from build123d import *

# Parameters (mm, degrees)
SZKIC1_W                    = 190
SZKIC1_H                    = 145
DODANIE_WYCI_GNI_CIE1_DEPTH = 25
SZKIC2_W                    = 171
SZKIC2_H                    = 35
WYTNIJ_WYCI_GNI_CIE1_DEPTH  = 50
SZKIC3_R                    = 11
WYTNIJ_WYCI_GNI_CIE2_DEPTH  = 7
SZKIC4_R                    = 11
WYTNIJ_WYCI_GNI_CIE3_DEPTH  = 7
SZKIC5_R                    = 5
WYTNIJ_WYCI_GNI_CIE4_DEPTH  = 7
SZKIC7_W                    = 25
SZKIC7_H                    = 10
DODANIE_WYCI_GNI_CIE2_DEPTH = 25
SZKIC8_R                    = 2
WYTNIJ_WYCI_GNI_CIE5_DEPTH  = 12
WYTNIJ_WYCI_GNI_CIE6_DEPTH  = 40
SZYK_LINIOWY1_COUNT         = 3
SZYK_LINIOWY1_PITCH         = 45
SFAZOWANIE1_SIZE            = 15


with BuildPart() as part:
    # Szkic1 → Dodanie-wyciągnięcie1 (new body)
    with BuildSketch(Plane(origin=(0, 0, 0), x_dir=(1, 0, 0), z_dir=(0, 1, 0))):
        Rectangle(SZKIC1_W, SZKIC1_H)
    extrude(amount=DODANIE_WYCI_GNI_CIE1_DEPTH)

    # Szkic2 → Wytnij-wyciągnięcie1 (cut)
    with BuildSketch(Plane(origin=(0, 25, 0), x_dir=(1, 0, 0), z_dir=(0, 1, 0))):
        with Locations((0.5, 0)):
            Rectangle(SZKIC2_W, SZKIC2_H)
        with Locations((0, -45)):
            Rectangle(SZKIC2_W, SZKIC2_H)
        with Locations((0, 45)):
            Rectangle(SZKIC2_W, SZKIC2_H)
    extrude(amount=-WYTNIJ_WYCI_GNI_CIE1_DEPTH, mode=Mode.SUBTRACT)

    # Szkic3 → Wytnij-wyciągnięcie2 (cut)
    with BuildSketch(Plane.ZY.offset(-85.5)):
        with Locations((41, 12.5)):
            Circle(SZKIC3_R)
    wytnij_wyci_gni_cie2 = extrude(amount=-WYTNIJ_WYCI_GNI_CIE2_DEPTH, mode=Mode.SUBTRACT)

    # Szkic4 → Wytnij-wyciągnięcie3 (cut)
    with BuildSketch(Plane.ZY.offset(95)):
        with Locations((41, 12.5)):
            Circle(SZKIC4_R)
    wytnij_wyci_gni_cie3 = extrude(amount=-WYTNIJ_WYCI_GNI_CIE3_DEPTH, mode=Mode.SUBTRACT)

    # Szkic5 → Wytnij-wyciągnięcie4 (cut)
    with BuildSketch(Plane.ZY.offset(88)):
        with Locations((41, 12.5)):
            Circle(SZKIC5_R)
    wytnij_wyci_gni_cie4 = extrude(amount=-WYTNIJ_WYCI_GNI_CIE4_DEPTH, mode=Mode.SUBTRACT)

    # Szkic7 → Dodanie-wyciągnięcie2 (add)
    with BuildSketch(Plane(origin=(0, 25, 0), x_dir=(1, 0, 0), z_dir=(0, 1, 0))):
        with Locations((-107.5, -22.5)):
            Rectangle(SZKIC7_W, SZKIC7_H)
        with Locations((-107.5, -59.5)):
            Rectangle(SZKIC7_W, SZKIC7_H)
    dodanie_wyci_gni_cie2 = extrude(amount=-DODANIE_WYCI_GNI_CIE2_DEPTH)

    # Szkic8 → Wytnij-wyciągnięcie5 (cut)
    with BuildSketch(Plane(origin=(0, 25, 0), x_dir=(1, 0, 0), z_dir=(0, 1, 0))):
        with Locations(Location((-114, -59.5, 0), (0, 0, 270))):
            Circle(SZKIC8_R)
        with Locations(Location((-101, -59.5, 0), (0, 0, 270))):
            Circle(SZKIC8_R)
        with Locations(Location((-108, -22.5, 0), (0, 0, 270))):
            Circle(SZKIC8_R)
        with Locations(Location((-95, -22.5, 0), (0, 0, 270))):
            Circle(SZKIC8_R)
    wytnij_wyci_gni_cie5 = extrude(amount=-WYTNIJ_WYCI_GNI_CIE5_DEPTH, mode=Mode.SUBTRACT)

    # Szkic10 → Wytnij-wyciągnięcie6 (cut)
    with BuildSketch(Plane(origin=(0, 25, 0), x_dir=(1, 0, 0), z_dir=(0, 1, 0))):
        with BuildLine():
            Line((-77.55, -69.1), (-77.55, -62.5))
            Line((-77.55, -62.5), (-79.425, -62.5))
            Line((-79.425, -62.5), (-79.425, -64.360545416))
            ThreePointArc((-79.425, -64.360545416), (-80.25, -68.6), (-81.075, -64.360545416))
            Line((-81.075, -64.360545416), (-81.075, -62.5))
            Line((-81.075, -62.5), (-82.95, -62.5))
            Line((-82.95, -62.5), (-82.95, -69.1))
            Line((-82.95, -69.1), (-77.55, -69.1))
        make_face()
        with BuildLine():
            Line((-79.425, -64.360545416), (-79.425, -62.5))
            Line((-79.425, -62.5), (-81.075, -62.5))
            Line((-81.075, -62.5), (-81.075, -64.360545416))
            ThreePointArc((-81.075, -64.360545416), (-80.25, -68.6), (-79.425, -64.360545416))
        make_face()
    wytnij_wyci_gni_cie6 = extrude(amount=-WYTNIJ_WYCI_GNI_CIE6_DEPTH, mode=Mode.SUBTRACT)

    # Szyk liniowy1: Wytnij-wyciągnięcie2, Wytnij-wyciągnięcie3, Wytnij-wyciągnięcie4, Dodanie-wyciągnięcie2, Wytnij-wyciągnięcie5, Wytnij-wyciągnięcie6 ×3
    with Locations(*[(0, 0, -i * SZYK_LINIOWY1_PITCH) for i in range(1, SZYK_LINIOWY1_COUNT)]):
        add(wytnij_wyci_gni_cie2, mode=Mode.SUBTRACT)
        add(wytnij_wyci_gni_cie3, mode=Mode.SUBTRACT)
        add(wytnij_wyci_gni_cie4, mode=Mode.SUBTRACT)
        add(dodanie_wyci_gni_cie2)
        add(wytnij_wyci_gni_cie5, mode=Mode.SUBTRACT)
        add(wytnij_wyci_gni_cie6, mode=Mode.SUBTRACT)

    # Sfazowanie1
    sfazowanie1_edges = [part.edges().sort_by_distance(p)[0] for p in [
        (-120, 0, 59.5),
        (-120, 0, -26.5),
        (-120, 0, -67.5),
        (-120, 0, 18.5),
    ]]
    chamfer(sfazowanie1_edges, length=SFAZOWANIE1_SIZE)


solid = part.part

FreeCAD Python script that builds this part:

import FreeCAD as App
import Part
import Sketcher
Q = App.Units.Quantity


def edges_at(feature, points):
    """Names of the edges that pass closest to the given points."""
    edges = feature.Shape.Edges
    near = lambda p: min(range(len(edges)), key=lambda i: edges[i].distToShape(Part.Vertex(*p))[0])
    return sorted({f"Edge{near(p) + 1}" for p in points})


def add_polygon(sketch, points):
    """Adds a closed chain of lines whose ends are joined by coincident constraints."""
    first, n = sketch.GeometryCount, len(points)
    for a, b in zip(points, points[1:] + points[:1]):
        sketch.addGeometry(Part.LineSegment(App.Vector(*a, 0), App.Vector(*b, 0)), False)
    for i in range(n):
        sketch.addConstraint(Sketcher.Constraint("Coincident", first + i, 2, first + (i + 1) % n, 1))

doc = App.newDocument("Part")
params = doc.addObject("Spreadsheet::Sheet", "Params")
for row, (alias, value) in enumerate([
    ("sketch1_width", "190 mm"),
    ("sketch1_height", "145 mm"),
    ("pad1_length", "25 mm"),
    ("sketch2_width", "171 mm"),
    ("sketch2_height", "35 mm"),
    ("pocket1_length", "50 mm"),
    ("sketch3_diameter", "22 mm"),
    ("pocket2_length", "7 mm"),
    ("sketch4_diameter", "22 mm"),
    ("pocket3_length", "7 mm"),
    ("sketch5_diameter", "10 mm"),
    ("pocket4_length", "7 mm"),
    ("sketch6_width", "25 mm"),
    ("sketch6_height", "10 mm"),
    ("pad2_length", "25 mm"),
    ("sketch7_diameter", "4 mm"),
    ("pocket5_length", "12 mm"),
    ("sketch8_width", "5.4 mm"),
    ("sketch8_height", "6.6 mm"),
    ("pocket6_length", "40 mm"),
    ("linearpattern_pitch", "45 mm"),
    ("chamfer_size", "15 mm"),
], start=1):
    params.set(f"A{row}", alias)
    params.set(f"B{row}", "=" + value)
    params.setAlias(f"B{row}", alias)

body = doc.addObject("PartDesign::Body", "Body")

# Sketch on XZ plane
sketch1 = body.newObject("Sketcher::SketchObject", "Sketch")
sketch1.AttachmentSupport = (doc.getObject("XZ_Plane"), [""])
sketch1.MapMode = "FlatFace"
add_polygon(sketch1, [(-95, -72), (-95, 72), (95, 72), (95, -72)])  # lines 0-3
sketch1.addConstraint([
    Sketcher.Constraint("Vertical", 0),
    Sketcher.Constraint("Horizontal", 1),
    Sketcher.Constraint("Vertical", 2),
    Sketcher.Constraint("Horizontal", 3),
    Sketcher.Constraint("Symmetric", 0, 2, 2, 2, -1, 1),
    Sketcher.Constraint("DistanceX", 1, 1, 1, 2, Q("190 mm")),
    Sketcher.Constraint("DistanceY", 0, 1, 0, 2, Q("145 mm")),
])
sketch1.setExpression("Constraints[9]", "Params.sketch1_width")
sketch1.setExpression("Constraints[10]", "Params.sketch1_height")
pad1 = body.newObject("PartDesign::Pad", "Pad")
pad1.Profile = sketch1
pad1.setExpression("Length", "Params.pad1_length")
pad1.Reversed = True

# Sketch on XZ plane
sketch2 = body.newObject("Sketcher::SketchObject", "Sketch001")
sketch2.AttachmentSupport = (doc.getObject("XZ_Plane"), [""])
sketch2.MapMode = "FlatFace"
sketch2.AttachmentOffset = App.Placement(App.Vector(0, 0, -25), App.Rotation())
add_polygon(sketch2, [(-85, -18), (-85, 18), (86, 18), (86, -18)])  # lines 0-3
add_polygon(sketch2, [(-86, 28), (-86, 62), (86, 62), (86, 28)])  # lines 4-7
add_polygon(sketch2, [(-86, -62), (-86, -28), (86, -28), (86, -62)])  # lines 8-11
sketch2.addConstraint([
    Sketcher.Constraint("Vertical", 0),
    Sketcher.Constraint("Horizontal", 1),
    Sketcher.Constraint("Vertical", 2),
    Sketcher.Constraint("Horizontal", 3),
    Sketcher.Constraint("Vertical", 4),
    Sketcher.Constraint("Horizontal", 5),
    Sketcher.Constraint("Vertical", 6),
    Sketcher.Constraint("Horizontal", 7),
    Sketcher.Constraint("Vertical", 8),
    Sketcher.Constraint("Horizontal", 9),
    Sketcher.Constraint("Vertical", 10),
    Sketcher.Constraint("Horizontal", 11),
    Sketcher.Constraint("Symmetric", 6, 2, 8, 2, -1, 1),
    Sketcher.Constraint("Symmetric", 4, 2, 10, 2, -1, 1),
    Sketcher.Constraint("Vertical", 7, 2, 8, 2),
    Sketcher.Constraint("Equal", 3, 5),
    Sketcher.Constraint("Equal", 2, 4),
    Sketcher.Constraint("DistanceX", 1, 1, 1, 2, Q("171 mm")),
    Sketcher.Constraint("DistanceY", 0, 1, 0, 2, Q("35 mm")),
    Sketcher.Constraint("DistanceX", 0, 2, -1, 1, Q("85 mm")),
    Sketcher.Constraint("DistanceY", 0, 2, 4, 2, Q("45 mm")),
    Sketcher.Constraint("DistanceY", 8, 2, 3, 2, Q("10 mm")),
])
sketch2.setExpression("Constraints[29]", "Params.sketch2_width")
sketch2.setExpression("Constraints[30]", "Params.sketch2_height")
pocket1 = body.newObject("PartDesign::Pocket", "Pocket")
pocket1.Profile = sketch2
pocket1.setExpression("Length", "Params.pocket1_length")
pocket1.Reversed = True

# Sketch on YZ plane
sketch3 = body.newObject("Sketcher::SketchObject", "Sketch002")
sketch3.AttachmentSupport = (doc.getObject("YZ_Plane"), [""])
sketch3.MapMode = "FlatFace"
sketch3.AttachmentOffset = App.Placement(App.Vector(0, 0, 85.5), App.Rotation())
sketch3.addGeometry(Part.Circle(App.Vector(12, 41, 0), App.Vector(0, 0, 1), 11), False)
sketch3.addConstraint([
    Sketcher.Constraint("Diameter", 0, Q("22 mm")),
    Sketcher.Constraint("DistanceY", -1, 1, 0, 3, Q("41 mm")),
    Sketcher.Constraint("DistanceX", -1, 1, 0, 3, Q("12.5 mm")),
])
sketch3.setExpression("Constraints[0]", "Params.sketch3_diameter")
pocket2 = body.newObject("PartDesign::Pocket", "Pocket001")
pocket2.Profile = sketch3
pocket2.setExpression("Length", "Params.pocket2_length")
pocket2.Reversed = True

# Sketch on YZ plane
sketch4 = body.newObject("Sketcher::SketchObject", "Sketch003")
sketch4.AttachmentSupport = (doc.getObject("YZ_Plane"), [""])
sketch4.MapMode = "FlatFace"
sketch4.AttachmentOffset = App.Placement(App.Vector(0, 0, -95), App.Rotation())
sketch4.addGeometry(Part.Circle(App.Vector(12, 41, 0), App.Vector(0, 0, 1), 11), False)
sketch4.addConstraint([
    Sketcher.Constraint("Diameter", 0, Q("22 mm")),
    Sketcher.Constraint("DistanceY", -1, 1, 0, 3, Q("41 mm")),
    Sketcher.Constraint("DistanceX", -1, 1, 0, 3, Q("12.5 mm")),
])
sketch4.setExpression("Constraints[0]", "Params.sketch4_diameter")
pocket3 = body.newObject("PartDesign::Pocket", "Pocket002")
pocket3.Profile = sketch4
pocket3.setExpression("Length", "Params.pocket3_length")
pocket3.Reversed = True

# Sketch on YZ plane
sketch5 = body.newObject("Sketcher::SketchObject", "Sketch004")
sketch5.AttachmentSupport = (doc.getObject("YZ_Plane"), [""])
sketch5.MapMode = "FlatFace"
sketch5.AttachmentOffset = App.Placement(App.Vector(0, 0, -88), App.Rotation())
sketch5.addGeometry(Part.Circle(App.Vector(12, 41, 0), App.Vector(0, 0, 1), 5), False)
sketch5.addConstraint([
    Sketcher.Constraint("Diameter", 0, Q("10 mm")),
    Sketcher.Constraint("DistanceY", -1, 1, 0, 3, Q("41 mm")),
    Sketcher.Constraint("DistanceX", -1, 1, 0, 3, Q("12.5 mm")),
])
sketch5.setExpression("Constraints[0]", "Params.sketch5_diameter")
pocket4 = body.newObject("PartDesign::Pocket", "Pocket003")
pocket4.Profile = sketch5
pocket4.setExpression("Length", "Params.pocket4_length")
pocket4.Reversed = True

# Sketch on XZ plane
sketch6 = body.newObject("Sketcher::SketchObject", "Sketch005")
sketch6.AttachmentSupport = (doc.getObject("XZ_Plane"), [""])
sketch6.MapMode = "FlatFace"
sketch6.AttachmentOffset = App.Placement(App.Vector(0, 0, -25), App.Rotation())
add_polygon(sketch6, [(-120, 18), (-120, 28), (-95, 28), (-95, 18)])  # lines 0-3
add_polygon(sketch6, [(-120, 54), (-120, 64), (-95, 64), (-95, 54)])  # lines 4-7
sketch6.addConstraint([
    Sketcher.Constraint("Vertical", 0),
    Sketcher.Constraint("Horizontal", 1),
    Sketcher.Constraint("Vertical", 2),
    Sketcher.Constraint("Horizontal", 3),
    Sketcher.Constraint("Vertical", 4),
    Sketcher.Constraint("Horizontal", 5),
    Sketcher.Constraint("Vertical", 6),
    Sketcher.Constraint("Horizontal", 7),
    Sketcher.Constraint("Vertical", 3, 2, 4, 2),
    Sketcher.Constraint("Vertical", 2, 2, 5, 2),
    Sketcher.Constraint("Equal", 2, 4),
    Sketcher.Constraint("DistanceX", 1, 1, 1, 2, Q("25 mm")),
    Sketcher.Constraint("DistanceY", 0, 1, 0, 2, Q("10 mm")),
    Sketcher.Constraint("DistanceX", 0, 2, -1, 1, Q("120 mm")),
    Sketcher.Constraint("DistanceY", 0, 2, 4, 2, Q("37 mm")),
    Sketcher.Constraint("DistanceY", -1, 1, 0, 2, Q("27.5 mm")),
])
sketch6.setExpression("Constraints[19]", "Params.sketch6_width")
sketch6.setExpression("Constraints[20]", "Params.sketch6_height")
pad2 = body.newObject("PartDesign::Pad", "Pad001")
pad2.Profile = sketch6
pad2.setExpression("Length", "Params.pad2_length")

# Sketch on XZ plane
sketch7 = body.newObject("Sketcher::SketchObject", "Sketch006")
sketch7.AttachmentSupport = (doc.getObject("XZ_Plane"), [""])
sketch7.MapMode = "FlatFace"
sketch7.AttachmentOffset = App.Placement(App.Vector(0, 0, -25), App.Rotation())
sketch7.addGeometry([
    Part.Circle(App.Vector(-114, 59.5, 0), App.Vector(0, 0, 1), 2),
    Part.Circle(App.Vector(-101, 59.5, 0), App.Vector(0, 0, 1), 2),
    Part.Circle(App.Vector(-108, 22.5, 0), App.Vector(0, 0, 1), 2),
    Part.Circle(App.Vector(-95, 22.5, 0), App.Vector(0, 0, 1), 2),
], False)
sketch7.addConstraint([
    Sketcher.Constraint("Equal", 0, 1),
    Sketcher.Constraint("Equal", 1, 2),
    Sketcher.Constraint("Equal", 2, 3),
    Sketcher.Constraint("Horizontal", 0, 3, 1, 3),
    Sketcher.Constraint("Horizontal", 2, 3, 3, 3),
    Sketcher.Constraint("Diameter", 0, Q("4 mm")),
    Sketcher.Constraint("DistanceX", 0, 3, -1, 1, Q("114 mm")),
    Sketcher.Constraint("DistanceX", 1, 3, -1, 1, Q("101 mm")),
    Sketcher.Constraint("DistanceX", 2, 3, -1, 1, Q("108 mm")),
    Sketcher.Constraint("DistanceX", 3, 3, -1, 1, Q("95 mm")),
    Sketcher.Constraint("DistanceY", 2, 3, 0, 3, Q("37 mm")),
    Sketcher.Constraint("DistanceY", -1, 1, 0, 3, Q("59.5 mm")),
])
sketch7.setExpression("Constraints[5]", "Params.sketch7_diameter")
pocket5 = body.newObject("PartDesign::Pocket", "Pocket004")
pocket5.Profile = sketch7
pocket5.setExpression("Length", "Params.pocket5_length")
pocket5.Reversed = True

# Sketch on XZ plane
sketch8 = body.newObject("Sketcher::SketchObject", "Sketch007")
sketch8.AttachmentSupport = (doc.getObject("XZ_Plane"), [""])
sketch8.MapMode = "FlatFace"
sketch8.AttachmentOffset = App.Placement(App.Vector(0, 0, -25), App.Rotation())
add_polygon(sketch8, [(-78, 69), (-78, 62), (-83, 62), (-83, 69)])  # lines 0-3
sketch8.addConstraint([
    Sketcher.Constraint("Vertical", 0),
    Sketcher.Constraint("Horizontal", 1),
    Sketcher.Constraint("Vertical", 2),
    Sketcher.Constraint("Horizontal", 3),
    Sketcher.Constraint("DistanceX", 1, 2, 1, 1, Q("5.4 mm")),
    Sketcher.Constraint("DistanceY", 0, 2, 0, 1, Q("6.6 mm")),
    Sketcher.Constraint("DistanceY", -1, 1, 0, 2, Q("62.5 mm")),
    Sketcher.Constraint("DistanceX", 0, 2, -1, 1, Q("77.55 mm")),
])
sketch8.setExpression("Constraints[8]", "Params.sketch8_width")
sketch8.setExpression("Constraints[9]", "Params.sketch8_height")
pocket6 = body.newObject("PartDesign::Pocket", "Pocket005")
pocket6.Profile = sketch8
pocket6.setExpression("Length", "Params.pocket6_length")
pocket6.Reversed = True
doc.recompute()

linearpattern = body.newObject("PartDesign::LinearPattern", "LinearPattern")
linearpattern.Originals = [pocket2, pocket3, pocket4, pad2, pocket5, pocket6]
linearpattern.Direction = (doc.getObject("Z_Axis"), [""])
linearpattern.Mode = "offset"
linearpattern.setExpression("Offset", "Params.linearpattern_pitch")
linearpattern.Occurrences = 3
linearpattern.Reversed = True
body.Tip = linearpattern
doc.recompute()

chamfer = body.newObject("PartDesign::Chamfer", "Chamfer")
chamfer.Base = (linearpattern, edges_at(linearpattern, [
    (-120, 0, 59.5),
    (-120, 0, -26.5),
    (-120, 0, -67.5),
    (-120, 0, 18.5),
]))
chamfer.setExpression("Size", "Params.chamfer_size")

doc.recompute()
